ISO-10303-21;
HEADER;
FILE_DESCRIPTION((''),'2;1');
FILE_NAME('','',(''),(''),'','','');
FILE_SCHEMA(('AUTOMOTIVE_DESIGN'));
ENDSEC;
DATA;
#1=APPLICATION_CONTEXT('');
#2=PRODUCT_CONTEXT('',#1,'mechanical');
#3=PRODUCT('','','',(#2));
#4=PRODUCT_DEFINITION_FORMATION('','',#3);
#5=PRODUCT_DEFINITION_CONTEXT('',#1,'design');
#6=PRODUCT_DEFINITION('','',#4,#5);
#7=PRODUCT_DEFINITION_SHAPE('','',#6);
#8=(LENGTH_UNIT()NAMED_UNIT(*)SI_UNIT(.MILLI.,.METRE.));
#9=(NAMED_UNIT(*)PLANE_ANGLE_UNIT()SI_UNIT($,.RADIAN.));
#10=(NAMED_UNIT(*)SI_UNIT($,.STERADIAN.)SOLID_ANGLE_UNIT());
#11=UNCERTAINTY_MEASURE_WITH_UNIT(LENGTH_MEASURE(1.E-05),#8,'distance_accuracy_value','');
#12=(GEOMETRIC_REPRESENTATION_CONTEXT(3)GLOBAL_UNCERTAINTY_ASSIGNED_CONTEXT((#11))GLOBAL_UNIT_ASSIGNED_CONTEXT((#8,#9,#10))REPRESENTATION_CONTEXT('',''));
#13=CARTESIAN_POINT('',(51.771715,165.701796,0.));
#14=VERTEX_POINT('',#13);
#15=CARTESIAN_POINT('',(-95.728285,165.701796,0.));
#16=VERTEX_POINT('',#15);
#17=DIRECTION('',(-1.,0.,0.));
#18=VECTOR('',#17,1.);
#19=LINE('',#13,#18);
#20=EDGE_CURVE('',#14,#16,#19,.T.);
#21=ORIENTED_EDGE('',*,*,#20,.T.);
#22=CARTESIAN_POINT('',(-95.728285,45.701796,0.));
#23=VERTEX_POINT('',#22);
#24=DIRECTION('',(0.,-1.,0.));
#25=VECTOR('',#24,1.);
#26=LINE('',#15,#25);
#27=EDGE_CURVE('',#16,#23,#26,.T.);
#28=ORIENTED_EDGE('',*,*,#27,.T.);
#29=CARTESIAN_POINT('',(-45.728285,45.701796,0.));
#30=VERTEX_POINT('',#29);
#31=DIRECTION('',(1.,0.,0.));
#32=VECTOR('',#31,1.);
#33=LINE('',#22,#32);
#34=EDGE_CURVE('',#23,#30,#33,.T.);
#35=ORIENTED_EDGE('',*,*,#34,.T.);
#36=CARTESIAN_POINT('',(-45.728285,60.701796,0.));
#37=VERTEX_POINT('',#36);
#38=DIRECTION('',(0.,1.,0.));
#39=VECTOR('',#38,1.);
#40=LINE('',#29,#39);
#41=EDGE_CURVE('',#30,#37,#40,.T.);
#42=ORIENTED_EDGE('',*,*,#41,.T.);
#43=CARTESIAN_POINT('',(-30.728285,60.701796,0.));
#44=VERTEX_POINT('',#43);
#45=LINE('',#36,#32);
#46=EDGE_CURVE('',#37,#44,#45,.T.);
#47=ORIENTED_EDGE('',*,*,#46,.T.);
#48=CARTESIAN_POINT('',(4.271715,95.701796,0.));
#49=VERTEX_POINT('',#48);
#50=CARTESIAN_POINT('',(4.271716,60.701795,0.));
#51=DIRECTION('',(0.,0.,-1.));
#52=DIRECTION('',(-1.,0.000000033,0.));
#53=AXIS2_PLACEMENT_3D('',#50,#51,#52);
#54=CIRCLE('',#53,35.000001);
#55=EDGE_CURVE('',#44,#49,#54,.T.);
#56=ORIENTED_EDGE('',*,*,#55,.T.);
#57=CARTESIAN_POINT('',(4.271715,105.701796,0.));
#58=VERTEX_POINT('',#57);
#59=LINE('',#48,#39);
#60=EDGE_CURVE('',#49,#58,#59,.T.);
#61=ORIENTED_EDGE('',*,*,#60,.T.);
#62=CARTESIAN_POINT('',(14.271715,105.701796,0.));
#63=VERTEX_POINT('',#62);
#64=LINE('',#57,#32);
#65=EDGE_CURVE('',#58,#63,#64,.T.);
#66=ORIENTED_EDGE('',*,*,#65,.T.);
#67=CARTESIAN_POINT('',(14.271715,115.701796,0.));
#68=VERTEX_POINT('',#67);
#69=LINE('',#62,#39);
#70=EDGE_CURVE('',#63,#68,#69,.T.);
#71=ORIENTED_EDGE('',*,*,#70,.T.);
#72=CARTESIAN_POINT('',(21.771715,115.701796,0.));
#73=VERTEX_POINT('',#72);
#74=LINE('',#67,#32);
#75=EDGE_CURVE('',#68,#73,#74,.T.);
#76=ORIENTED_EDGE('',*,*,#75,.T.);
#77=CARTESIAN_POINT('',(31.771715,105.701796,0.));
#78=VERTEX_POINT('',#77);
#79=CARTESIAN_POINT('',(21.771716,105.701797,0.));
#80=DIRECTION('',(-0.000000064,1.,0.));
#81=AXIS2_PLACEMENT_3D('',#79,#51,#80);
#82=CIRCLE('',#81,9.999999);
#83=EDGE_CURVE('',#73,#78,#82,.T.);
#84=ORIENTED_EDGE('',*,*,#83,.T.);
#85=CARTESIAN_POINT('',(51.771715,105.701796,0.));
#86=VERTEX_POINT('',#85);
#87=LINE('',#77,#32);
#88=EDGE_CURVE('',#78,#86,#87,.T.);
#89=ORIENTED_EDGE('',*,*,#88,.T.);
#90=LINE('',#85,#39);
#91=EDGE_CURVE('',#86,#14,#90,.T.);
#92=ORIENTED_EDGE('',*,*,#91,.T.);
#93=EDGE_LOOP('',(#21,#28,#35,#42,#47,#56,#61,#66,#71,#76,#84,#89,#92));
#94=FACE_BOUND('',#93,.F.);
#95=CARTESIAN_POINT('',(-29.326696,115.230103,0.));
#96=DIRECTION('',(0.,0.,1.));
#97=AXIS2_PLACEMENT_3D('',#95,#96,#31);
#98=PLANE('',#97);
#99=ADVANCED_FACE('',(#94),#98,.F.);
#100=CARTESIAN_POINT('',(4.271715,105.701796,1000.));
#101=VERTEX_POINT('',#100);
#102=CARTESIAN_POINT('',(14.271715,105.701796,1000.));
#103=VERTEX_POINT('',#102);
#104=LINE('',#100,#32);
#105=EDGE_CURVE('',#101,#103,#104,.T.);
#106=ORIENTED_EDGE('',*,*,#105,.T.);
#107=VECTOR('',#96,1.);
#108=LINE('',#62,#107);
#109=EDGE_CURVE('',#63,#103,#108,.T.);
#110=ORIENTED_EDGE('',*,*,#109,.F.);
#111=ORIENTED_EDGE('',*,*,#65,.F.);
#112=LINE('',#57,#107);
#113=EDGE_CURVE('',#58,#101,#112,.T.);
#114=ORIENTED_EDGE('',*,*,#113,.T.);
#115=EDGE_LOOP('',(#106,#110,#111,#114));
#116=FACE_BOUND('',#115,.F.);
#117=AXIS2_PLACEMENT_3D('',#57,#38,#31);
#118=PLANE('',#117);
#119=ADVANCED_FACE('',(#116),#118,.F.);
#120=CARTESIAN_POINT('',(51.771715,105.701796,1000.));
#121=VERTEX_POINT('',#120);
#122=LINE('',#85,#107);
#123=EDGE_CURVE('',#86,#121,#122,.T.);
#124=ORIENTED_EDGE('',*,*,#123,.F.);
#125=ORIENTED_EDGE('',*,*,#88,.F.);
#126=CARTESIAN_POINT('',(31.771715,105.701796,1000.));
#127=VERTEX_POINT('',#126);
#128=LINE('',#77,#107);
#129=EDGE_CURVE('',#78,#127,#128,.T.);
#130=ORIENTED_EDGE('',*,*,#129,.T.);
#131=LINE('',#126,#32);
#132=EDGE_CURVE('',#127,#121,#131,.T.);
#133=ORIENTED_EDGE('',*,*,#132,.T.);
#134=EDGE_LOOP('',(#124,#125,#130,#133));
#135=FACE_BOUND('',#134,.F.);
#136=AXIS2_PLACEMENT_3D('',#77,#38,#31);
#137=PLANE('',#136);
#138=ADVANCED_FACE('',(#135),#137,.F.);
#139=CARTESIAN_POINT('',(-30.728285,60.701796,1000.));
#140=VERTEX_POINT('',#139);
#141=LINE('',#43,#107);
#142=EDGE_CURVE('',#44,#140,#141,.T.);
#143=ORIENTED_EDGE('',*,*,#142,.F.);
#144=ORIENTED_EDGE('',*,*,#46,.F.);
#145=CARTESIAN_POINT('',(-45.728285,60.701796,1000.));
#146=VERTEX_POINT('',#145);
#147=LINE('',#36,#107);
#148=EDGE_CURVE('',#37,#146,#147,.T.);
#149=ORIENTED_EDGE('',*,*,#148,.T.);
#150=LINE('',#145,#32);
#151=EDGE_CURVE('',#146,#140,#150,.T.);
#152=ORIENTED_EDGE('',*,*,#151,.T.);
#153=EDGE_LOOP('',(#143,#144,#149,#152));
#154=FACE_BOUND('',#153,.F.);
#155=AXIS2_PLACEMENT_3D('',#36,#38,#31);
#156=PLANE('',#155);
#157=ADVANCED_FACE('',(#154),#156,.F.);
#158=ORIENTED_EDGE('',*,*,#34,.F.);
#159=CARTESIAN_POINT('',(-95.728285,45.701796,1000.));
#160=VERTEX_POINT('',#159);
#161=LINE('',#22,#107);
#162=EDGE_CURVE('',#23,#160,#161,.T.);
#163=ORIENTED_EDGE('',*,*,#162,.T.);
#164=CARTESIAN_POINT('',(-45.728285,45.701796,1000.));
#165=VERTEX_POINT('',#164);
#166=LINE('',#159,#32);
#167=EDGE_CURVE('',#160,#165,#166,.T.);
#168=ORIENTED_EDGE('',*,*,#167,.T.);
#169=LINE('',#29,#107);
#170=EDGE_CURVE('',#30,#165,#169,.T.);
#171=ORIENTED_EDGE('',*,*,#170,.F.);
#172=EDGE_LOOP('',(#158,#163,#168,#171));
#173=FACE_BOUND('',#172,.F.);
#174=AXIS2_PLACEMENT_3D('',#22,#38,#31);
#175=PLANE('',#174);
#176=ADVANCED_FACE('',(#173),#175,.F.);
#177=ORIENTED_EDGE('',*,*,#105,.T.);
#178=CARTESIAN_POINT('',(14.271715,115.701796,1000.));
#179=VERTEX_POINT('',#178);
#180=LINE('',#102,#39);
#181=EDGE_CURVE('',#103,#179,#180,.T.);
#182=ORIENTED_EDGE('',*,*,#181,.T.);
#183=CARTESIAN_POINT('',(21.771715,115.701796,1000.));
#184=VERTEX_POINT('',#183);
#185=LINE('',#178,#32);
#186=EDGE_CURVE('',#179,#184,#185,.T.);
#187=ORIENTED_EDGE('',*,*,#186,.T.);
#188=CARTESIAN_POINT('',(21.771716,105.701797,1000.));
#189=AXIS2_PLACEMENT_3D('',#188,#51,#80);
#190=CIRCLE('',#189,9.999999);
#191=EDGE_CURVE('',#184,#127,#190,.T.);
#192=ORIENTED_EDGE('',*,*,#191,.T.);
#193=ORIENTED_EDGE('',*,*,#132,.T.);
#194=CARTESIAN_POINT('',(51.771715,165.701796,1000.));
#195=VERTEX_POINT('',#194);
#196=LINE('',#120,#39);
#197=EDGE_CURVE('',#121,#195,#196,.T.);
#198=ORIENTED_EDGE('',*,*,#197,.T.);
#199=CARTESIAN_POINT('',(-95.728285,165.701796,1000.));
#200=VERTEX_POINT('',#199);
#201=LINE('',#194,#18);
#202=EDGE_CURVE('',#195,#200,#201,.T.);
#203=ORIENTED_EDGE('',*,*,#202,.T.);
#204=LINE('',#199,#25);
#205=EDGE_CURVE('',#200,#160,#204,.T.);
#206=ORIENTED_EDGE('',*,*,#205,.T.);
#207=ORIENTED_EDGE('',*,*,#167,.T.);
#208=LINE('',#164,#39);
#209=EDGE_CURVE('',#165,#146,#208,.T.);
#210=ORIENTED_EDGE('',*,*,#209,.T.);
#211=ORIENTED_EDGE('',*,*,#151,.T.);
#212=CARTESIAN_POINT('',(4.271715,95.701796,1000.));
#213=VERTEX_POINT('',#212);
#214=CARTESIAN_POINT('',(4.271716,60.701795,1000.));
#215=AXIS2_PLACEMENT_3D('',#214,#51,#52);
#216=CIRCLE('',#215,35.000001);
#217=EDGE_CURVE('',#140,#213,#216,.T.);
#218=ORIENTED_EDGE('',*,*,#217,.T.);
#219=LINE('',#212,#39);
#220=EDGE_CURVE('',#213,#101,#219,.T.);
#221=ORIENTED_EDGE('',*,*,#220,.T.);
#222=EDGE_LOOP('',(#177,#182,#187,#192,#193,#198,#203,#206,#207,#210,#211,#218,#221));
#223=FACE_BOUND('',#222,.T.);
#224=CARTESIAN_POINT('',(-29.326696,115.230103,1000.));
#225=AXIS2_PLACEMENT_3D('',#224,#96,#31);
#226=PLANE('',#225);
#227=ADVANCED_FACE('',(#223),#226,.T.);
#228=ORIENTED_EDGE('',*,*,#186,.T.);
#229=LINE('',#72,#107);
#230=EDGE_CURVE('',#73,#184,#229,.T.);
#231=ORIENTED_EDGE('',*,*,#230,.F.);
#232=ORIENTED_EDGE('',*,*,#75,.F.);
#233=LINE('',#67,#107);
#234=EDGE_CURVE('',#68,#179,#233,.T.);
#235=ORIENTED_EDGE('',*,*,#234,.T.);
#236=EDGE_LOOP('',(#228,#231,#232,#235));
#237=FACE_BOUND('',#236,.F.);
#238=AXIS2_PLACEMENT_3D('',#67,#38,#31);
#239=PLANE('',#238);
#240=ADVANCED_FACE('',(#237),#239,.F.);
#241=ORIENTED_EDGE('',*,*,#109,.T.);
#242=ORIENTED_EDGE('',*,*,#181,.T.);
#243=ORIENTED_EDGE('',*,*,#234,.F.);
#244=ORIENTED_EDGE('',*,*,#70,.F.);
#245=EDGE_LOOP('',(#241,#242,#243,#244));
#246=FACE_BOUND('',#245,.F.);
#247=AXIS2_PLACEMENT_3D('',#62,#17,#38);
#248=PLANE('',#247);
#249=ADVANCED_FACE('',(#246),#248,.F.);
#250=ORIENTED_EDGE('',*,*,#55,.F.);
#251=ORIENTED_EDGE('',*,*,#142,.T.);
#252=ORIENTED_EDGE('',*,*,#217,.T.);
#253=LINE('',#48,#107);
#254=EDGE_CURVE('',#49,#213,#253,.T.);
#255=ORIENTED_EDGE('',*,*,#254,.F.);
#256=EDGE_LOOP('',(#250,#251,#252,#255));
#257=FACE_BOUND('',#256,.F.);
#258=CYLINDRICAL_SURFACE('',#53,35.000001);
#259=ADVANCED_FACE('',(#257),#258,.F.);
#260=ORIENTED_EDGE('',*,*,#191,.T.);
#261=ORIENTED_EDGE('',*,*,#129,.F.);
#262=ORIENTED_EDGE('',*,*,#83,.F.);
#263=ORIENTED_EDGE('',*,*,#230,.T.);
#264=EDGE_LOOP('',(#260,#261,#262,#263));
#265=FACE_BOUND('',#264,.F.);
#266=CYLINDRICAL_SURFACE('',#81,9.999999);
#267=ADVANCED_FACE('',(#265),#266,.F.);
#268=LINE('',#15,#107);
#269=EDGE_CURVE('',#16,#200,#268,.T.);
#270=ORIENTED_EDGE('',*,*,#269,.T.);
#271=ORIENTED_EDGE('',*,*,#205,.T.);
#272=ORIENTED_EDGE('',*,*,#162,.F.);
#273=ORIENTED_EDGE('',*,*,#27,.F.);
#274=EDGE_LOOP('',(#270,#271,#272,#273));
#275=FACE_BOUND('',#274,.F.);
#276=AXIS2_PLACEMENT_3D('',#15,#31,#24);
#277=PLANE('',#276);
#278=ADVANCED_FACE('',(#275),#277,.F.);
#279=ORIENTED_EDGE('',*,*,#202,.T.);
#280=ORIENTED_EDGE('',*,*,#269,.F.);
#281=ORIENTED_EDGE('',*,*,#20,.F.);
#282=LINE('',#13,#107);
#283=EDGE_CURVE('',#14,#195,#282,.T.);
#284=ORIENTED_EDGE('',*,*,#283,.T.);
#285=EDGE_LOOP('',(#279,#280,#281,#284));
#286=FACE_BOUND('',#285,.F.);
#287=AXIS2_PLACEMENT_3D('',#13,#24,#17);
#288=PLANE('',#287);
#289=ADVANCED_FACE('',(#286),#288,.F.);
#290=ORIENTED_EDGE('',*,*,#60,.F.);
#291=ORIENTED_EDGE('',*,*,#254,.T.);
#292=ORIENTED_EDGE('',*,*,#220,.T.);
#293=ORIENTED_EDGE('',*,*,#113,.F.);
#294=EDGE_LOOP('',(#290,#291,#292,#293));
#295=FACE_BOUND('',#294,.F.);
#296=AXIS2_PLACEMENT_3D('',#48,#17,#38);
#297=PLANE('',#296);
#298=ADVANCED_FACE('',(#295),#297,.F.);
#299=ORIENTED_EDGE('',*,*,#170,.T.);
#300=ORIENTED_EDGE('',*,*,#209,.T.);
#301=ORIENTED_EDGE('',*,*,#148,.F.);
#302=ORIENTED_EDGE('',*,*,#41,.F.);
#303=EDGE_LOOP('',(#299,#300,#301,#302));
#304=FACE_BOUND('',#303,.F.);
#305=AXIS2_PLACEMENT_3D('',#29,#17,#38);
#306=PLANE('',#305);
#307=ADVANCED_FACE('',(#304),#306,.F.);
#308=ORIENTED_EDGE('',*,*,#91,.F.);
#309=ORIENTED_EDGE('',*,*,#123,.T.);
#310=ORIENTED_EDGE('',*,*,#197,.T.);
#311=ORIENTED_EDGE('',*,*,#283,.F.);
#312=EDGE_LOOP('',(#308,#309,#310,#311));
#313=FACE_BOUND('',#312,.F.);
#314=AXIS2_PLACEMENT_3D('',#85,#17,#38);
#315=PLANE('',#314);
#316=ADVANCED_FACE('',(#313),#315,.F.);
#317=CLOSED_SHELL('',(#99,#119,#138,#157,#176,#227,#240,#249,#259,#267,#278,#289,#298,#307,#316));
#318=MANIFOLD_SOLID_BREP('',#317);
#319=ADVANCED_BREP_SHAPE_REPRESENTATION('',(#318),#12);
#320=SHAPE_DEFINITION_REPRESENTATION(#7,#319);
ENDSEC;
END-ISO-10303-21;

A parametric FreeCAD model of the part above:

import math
import FreeCAD as App
import Part
import Sketcher
from FreeCAD import Vector

doc = App.newDocument("Part")
body = doc.addObject("PartDesign::Body", "Body")

sketch1 = doc.addObject("Sketcher::SketchObject", "Sketch")
body.addObject(sketch1)
sketch1.AttachmentSupport = (doc.XY_Plane, [""])
sketch1.MapMode = "FlatFace"
sketch1.addGeometry([
    Part.LineSegment(Vector(52, 106, 0), Vector(52, 166, 0)),
    Part.LineSegment(Vector(52, 166, 0), Vector(-96, 166, 0)),
    Part.LineSegment(Vector(-96, 166, 0), Vector(-96, 46, 0)),
    Part.LineSegment(Vector(-96, 46, 0), Vector(-46, 46, 0)),
    Part.LineSegment(Vector(-46, 46, 0), Vector(-46, 61, 0)),
    Part.LineSegment(Vector(-46, 61, 0), Vector(-31, 61, 0)),
    Part.ArcOfCircle(Part.Circle(Vector(4, 61, 0), Vector(0, 0, 1), 35), math.radians(90), math.radians(180)),
    Part.LineSegment(Vector(4, 96, 0), Vector(4, 106, 0)),
    Part.LineSegment(Vector(4, 106, 0), Vector(14, 106, 0)),
    Part.LineSegment(Vector(14, 106, 0), Vector(14, 116, 0)),
    Part.LineSegment(Vector(14, 116, 0), Vector(22, 116, 0)),
    Part.ArcOfCircle(Part.Circle(Vector(22, 106, 0), Vector(0, 0, 1), 10), math.radians(0), math.radians(90)),
    Part.LineSegment(Vector(32, 106, 0), Vector(52, 106, 0)),
], False)
sketch1.addConstraint([
    Sketcher.Constraint("Coincident", 0, 2, 1, 1),
    Sketcher.Constraint("Coincident", 1, 2, 2, 1),
    Sketcher.Constraint("Coincident", 2, 2, 3, 1),
    Sketcher.Constraint("Coincident", 3, 2, 4, 1),
    Sketcher.Constraint("Coincident", 4, 2, 5, 1),
    Sketcher.Constraint("Coincident", 5, 2, 6, 2),
    Sketcher.Constraint("Coincident", 6, 1, 7, 1),
    Sketcher.Constraint("Coincident", 7, 2, 8, 1),
    Sketcher.Constraint("Coincident", 8, 2, 9, 1),
    Sketcher.Constraint("Coincident", 9, 2, 10, 1),
    Sketcher.Constraint("Tangent", 10, 2, 11, 2),
    Sketcher.Constraint("Coincident", 11, 1, 12, 1),
    Sketcher.Constraint("Coincident", 12, 2, 0, 1),
    Sketcher.Constraint("Vertical", 0),
    Sketcher.Constraint("Horizontal", 1),
    Sketcher.Constraint("Vertical", 2),
    Sketcher.Constraint("Horizontal", 3),
    Sketcher.Constraint("Vertical", 4),
    Sketcher.Constraint("Horizontal", 5),
    Sketcher.Constraint("Vertical", 7),
    Sketcher.Constraint("Horizontal", 8),
    Sketcher.Constraint("Vertical", 9),
    Sketcher.Constraint("Horizontal", 10),
    Sketcher.Constraint("Horizontal", 12),
    Sketcher.Constraint("Horizontal", 6, 3, 4, 2),
    Sketcher.Constraint("Horizontal", 11, 3, 7, 2),
    Sketcher.Constraint("Horizontal", 8, 2, 11, 1),
    Sketcher.Constraint("Equal", 5, 4),
    Sketcher.Constraint("Equal", 8, 7),
    Sketcher.Constraint("Equal", 7, 9),
    Sketcher.Constraint("Radius", 6, 35.000001),
    Sketcher.Constraint("Radius", 11, 9.999999),
    Sketcher.Constraint("DistanceX", 3, 1, 3, 2, 50.0),
    Sketcher.Constraint("DistanceX", 5, 1, 5, 2, 15.0),
    Sketcher.Constraint("DistanceX", 12, 1, 12, 2, 20.0),
    Sketcher.Constraint("DistanceY", 0, 1, 0, 2, 60.0),
    Sketcher.Constraint("DistanceX", 1, 2, 1, 1, 147.5),
    Sketcher.Constraint("DistanceX", 10, 1, 10, 2, 7.5),
    Sketcher.Constraint("DistanceX", -1, 1, 6, 3, 4.271716),
    Sketcher.Constraint("DistanceY", -1, 1, 6, 3, 60.701795),
])
pad1 = doc.addObject("PartDesign::Pad", "Pad")
body.addObject(pad1)
pad1.Profile = sketch1
pad1.Length = 1000

doc.recompute()
